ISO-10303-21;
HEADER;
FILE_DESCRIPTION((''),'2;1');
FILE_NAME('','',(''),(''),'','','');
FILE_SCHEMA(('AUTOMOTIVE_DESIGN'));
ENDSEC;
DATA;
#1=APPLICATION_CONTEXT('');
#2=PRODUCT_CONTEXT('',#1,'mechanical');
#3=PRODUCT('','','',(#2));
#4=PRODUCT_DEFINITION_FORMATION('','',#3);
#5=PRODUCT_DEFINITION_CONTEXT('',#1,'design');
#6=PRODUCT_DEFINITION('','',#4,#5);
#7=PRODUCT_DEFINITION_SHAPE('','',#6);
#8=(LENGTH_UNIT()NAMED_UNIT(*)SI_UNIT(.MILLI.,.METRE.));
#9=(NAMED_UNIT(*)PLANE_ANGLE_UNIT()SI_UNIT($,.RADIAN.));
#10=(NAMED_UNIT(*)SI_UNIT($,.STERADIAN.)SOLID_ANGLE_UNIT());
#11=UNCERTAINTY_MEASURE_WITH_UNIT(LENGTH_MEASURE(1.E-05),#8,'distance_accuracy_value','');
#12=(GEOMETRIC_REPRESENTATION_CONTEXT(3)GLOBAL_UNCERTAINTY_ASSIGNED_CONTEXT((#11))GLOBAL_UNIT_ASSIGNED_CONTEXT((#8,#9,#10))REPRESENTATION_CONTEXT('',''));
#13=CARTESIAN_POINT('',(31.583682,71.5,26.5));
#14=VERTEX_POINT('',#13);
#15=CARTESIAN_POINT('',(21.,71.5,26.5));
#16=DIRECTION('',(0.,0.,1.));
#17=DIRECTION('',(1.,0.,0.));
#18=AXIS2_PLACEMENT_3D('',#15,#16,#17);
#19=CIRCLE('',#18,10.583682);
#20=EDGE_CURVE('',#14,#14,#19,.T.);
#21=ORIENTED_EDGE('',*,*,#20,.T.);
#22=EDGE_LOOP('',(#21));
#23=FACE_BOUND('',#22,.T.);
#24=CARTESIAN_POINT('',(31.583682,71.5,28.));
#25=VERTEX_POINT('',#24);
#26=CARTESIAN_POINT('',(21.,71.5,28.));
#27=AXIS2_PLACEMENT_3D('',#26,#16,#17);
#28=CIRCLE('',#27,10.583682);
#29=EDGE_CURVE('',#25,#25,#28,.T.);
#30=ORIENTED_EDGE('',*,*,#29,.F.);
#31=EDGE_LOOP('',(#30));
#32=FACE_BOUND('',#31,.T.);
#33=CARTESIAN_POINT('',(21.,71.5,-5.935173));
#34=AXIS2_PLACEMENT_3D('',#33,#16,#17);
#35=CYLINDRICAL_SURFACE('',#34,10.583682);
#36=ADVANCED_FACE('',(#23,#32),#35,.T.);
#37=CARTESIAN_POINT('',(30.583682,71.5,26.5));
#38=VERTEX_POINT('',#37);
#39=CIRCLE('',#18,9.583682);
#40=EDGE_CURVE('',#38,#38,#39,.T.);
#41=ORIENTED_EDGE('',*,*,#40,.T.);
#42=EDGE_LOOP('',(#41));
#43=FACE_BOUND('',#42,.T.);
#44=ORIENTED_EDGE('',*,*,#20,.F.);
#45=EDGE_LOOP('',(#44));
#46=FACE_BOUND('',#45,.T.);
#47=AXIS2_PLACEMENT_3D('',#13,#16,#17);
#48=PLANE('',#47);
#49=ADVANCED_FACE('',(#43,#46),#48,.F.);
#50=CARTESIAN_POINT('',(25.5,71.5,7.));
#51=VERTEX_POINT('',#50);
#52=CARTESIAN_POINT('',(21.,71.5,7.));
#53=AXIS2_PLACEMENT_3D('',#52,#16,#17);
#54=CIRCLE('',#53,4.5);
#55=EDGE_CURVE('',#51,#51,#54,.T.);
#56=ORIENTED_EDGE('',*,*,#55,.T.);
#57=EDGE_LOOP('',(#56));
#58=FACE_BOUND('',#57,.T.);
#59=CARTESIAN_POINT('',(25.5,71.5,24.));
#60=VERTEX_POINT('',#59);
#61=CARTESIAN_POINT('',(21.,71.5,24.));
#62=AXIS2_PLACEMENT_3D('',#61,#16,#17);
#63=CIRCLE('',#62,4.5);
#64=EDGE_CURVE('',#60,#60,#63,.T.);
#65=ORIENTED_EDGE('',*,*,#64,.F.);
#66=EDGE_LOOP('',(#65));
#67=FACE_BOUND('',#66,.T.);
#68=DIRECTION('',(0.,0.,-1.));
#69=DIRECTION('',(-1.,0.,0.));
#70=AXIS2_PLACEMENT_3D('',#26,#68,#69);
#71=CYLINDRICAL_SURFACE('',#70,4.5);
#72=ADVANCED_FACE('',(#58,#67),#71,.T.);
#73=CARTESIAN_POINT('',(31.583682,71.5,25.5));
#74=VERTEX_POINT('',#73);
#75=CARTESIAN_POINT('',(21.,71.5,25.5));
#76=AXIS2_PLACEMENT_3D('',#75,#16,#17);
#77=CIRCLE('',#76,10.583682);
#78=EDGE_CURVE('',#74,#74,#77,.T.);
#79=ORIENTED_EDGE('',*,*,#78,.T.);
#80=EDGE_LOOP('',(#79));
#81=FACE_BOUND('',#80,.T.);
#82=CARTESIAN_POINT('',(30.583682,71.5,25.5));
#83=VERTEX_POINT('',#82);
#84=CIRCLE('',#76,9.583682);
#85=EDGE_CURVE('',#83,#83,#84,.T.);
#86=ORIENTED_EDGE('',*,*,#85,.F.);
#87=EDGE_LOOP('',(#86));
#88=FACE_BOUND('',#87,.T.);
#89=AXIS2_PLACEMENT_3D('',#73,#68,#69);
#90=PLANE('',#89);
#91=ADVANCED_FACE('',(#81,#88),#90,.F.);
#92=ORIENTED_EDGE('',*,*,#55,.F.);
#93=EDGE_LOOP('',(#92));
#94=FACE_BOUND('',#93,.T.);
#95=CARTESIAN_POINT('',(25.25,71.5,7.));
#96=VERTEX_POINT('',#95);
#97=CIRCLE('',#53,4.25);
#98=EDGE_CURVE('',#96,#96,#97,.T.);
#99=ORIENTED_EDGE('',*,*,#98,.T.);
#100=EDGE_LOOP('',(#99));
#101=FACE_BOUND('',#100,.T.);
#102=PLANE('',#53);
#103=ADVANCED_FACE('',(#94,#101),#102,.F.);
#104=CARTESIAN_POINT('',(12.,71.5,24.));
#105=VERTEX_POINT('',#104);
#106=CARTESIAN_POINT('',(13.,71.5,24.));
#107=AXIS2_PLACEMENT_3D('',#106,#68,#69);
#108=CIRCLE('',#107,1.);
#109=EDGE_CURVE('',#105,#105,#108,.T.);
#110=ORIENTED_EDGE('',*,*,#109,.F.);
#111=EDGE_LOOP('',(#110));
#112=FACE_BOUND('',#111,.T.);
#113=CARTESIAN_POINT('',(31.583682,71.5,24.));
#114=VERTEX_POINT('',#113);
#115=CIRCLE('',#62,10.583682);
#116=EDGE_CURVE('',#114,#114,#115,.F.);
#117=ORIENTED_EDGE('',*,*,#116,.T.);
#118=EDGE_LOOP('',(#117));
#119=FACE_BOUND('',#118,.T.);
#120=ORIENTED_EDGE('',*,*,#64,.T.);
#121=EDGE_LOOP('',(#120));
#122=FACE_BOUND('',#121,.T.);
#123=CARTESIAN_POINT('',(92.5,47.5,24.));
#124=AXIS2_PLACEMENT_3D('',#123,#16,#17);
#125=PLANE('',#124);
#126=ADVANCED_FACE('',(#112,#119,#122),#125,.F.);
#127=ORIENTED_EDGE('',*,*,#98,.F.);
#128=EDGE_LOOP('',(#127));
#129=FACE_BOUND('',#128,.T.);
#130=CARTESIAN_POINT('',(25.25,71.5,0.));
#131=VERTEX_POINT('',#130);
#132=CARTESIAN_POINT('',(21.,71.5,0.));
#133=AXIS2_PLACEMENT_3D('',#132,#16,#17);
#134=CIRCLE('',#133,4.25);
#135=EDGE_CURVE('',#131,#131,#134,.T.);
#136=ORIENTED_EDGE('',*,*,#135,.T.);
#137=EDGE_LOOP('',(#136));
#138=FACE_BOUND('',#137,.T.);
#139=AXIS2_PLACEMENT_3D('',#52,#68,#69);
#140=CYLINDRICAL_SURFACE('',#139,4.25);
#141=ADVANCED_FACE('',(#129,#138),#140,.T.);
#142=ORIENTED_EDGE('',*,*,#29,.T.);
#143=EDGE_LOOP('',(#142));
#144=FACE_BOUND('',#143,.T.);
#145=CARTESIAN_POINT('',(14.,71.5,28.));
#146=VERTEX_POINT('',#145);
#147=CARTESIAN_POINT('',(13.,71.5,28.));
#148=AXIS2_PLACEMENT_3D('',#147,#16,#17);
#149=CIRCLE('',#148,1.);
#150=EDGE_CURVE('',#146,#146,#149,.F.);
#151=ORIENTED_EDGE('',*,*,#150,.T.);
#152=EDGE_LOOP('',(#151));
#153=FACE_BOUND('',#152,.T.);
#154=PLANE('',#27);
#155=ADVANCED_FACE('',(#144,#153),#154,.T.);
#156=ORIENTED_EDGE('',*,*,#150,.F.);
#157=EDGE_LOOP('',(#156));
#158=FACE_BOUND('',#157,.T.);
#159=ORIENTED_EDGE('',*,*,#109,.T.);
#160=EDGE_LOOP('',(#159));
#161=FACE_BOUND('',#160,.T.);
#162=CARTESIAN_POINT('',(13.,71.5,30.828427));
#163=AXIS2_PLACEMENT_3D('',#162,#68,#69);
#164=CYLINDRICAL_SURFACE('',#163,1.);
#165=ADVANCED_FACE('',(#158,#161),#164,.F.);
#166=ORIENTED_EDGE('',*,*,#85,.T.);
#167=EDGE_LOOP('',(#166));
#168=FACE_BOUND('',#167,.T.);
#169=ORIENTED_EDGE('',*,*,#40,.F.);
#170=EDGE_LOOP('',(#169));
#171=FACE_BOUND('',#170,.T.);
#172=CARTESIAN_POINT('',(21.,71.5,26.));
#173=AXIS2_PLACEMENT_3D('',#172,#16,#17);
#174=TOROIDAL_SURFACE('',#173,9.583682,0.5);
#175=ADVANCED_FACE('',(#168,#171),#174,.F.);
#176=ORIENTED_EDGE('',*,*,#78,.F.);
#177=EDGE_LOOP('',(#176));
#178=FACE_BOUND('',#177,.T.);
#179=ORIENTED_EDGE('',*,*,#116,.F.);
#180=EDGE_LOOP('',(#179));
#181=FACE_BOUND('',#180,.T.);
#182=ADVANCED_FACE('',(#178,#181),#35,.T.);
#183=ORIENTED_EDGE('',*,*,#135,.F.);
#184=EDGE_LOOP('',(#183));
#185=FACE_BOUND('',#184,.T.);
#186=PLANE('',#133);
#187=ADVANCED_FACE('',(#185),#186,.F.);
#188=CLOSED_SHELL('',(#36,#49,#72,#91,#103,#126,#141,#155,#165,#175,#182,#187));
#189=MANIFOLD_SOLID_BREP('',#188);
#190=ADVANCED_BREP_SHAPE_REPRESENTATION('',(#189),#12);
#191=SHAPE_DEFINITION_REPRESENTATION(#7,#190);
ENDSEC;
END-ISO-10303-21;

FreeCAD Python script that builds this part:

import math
import FreeCAD as App
import Part
import Sketcher

doc = App.newDocument("Part")
params = doc.addObject("Spreadsheet::Sheet", "Params")
for row, (alias, value) in enumerate([
    ("sketch1_diameter", "8.5 mm"),
    ("pad1_length", "7 mm"),
    ("sketch2_diameter", "9 mm"),
    ("pad2_length", "21 mm"),
    ("pad3_length", "4 mm"),
    ("sketch4_radius", "0.5 mm"),
    ("groove_angle", "360 deg"),
    ("sketch5_diameter", "2 mm"),
    ("pocket1_length", "4 mm"),
], start=1):
    params.set(f"A{row}", alias)
    params.set(f"B{row}", "=" + value)
    params.setAlias(f"B{row}", alias)

body = doc.addObject("PartDesign::Body", "Body")

# Sketch on XY plane
sketch1 = body.newObject("Sketcher::SketchObject", "Sketch")
sketch1.AttachmentSupport = (doc.getObject("XY_Plane"), [""])
sketch1.MapMode = "FlatFace"
sketch1.addGeometry(Part.Circle(App.Vector(21, 71.5, 0), App.Vector(0, 0, 1), 4.2), False)
sketch1.addConstraint([
    Sketcher.Constraint("Diameter", 0, 8.5),
    Sketcher.Constraint("DistanceX", -1, 1, 0, 3, 21.0),
    Sketcher.Constraint("DistanceY", -1, 1, 0, 3, 71.5),
])
sketch1.setExpression("Constraints[0]", "Params.sketch1_diameter")
pad1 = body.newObject("PartDesign::Pad", "Pad")
pad1.Profile = sketch1
pad1.setExpression("Length", "Params.pad1_length")

# Sketch on XY plane
sketch2 = body.newObject("Sketcher::SketchObject", "Sketch001")
sketch2.AttachmentSupport = (doc.getObject("XY_Plane"), [""])
sketch2.MapMode = "FlatFace"
sketch2.AttachmentOffset = App.Placement(App.Vector(0, 0, 7), App.Rotation())
sketch2.addGeometry(Part.Circle(App.Vector(21, 71.5, 0), App.Vector(0, 0, 1), 4.5), False)
sketch2.addConstraint([
    Sketcher.Constraint("Diameter", 0, 9.0),
    Sketcher.Constraint("DistanceX", -1, 1, 0, 3, 21.0),
    Sketcher.Constraint("DistanceY", -1, 1, 0, 3, 71.5),
])
sketch2.setExpression("Constraints[0]", "Params.sketch2_diameter")
pad2 = body.newObject("PartDesign::Pad", "Pad001")
pad2.Profile = sketch2
pad2.setExpression("Length", "Params.pad2_length")

# Sketch on XY plane
sketch3 = body.newObject("Sketcher::SketchObject", "Sketch002")
sketch3.AttachmentSupport = (doc.getObject("XY_Plane"), [""])
sketch3.MapMode = "FlatFace"
sketch3.AttachmentOffset = App.Placement(App.Vector(0, 0, 28), App.Rotation())
sketch3.addGeometry(Part.Circle(App.Vector(21, 72, 0), App.Vector(0, 0, 1), 11), False)
sketch3.addConstraint([
    Sketcher.Constraint("DistanceX", -1, 1, 0, 3, 21.0),
    Sketcher.Constraint("DistanceY", -1, 1, 0, 3, 71.5),
    Sketcher.Constraint("Diameter", 0, 21.167364),
])
pad3 = body.newObject("PartDesign::Pad", "Pad002")
pad3.Profile = sketch3
pad3.setExpression("Length", "Params.pad3_length")
pad3.Reversed = True

# Sketch on XZ plane
sketch4 = body.newObject("Sketcher::SketchObject", "Sketch003")
sketch4.AttachmentSupport = (doc.getObject("XZ_Plane"), [""])
sketch4.MapMode = "FlatFace"
sketch4.AttachmentOffset = App.Placement(App.Vector(0, 0, -71.5), App.Rotation())
sketch4.addGeometry([
    Part.LineSegment(App.Vector(31.6, 26.5, 0), App.Vector(31.6, 25.5, 0)),
    Part.LineSegment(App.Vector(31.6, 25.5, 0), App.Vector(30.6, 25.5, 0)),
    Part.ArcOfCircle(Part.Circle(App.Vector(30.6, 26, 0), App.Vector(0, 0, 1), 0.5), math.radians(90), math.radians(270)),
    Part.LineSegment(App.Vector(30.6, 26.5, 0), App.Vector(31.6, 26.5, 0)),
], False)
sketch4.addGeometry(Part.LineSegment(App.Vector(21, 26.5, 0), App.Vector(21, 25.5, 0)), True)  # axis
sketch4.addConstraint([
    Sketcher.Constraint("Coincident", 0, 2, 1, 1),
    Sketcher.Constraint("Tangent", 1, 2, 2, 2),
    Sketcher.Constraint("Tangent", 2, 1, 3, 1),
    Sketcher.Constraint("Coincident", 3, 2, 0, 1),
    Sketcher.Constraint("Vertical", 0),
    Sketcher.Constraint("Horizontal", 1),
    Sketcher.Constraint("Horizontal", 3),
    Sketcher.Constraint("Vertical", 4),
    Sketcher.Constraint("Horizontal", 3, 2, 4, 1),
    Sketcher.Constraint("Horizontal", 1, 2, 4, 2),
    Sketcher.Constraint("Equal", 3, 0),
    Sketcher.Constraint("Radius", 2, 0.5),
    Sketcher.Constraint("DistanceY", -1, 1, 2, 3, 26.0),
    Sketcher.Constraint("DistanceX", -1, 1, 4, 1, 21.0),
    Sketcher.Constraint("DistanceX", -1, 1, 2, 3, 30.583682),
])
sketch4.setExpression("Constraints[11]", "Params.sketch4_radius")
groove = body.newObject("PartDesign::Groove", "Groove")
groove.Profile = sketch4
groove.ReferenceAxis = (sketch4, ["Axis0"])
groove.setExpression("Angle", "Params.groove_angle")

# Sketch on XY plane
sketch5 = body.newObject("Sketcher::SketchObject", "Sketch004")
sketch5.AttachmentSupport = (doc.getObject("XY_Plane"), [""])
sketch5.MapMode = "FlatFace"
sketch5.AttachmentOffset = App.Placement(App.Vector(0, 0, 24), App.Rotation())
sketch5.addGeometry(Part.Circle(App.Vector(13, 71.5, 0), App.Vector(0, 0, 1), 1), False)
sketch5.addConstraint([
    Sketcher.Constraint("Diameter", 0, 2.0),
    Sketcher.Constraint("DistanceX", -1, 1, 0, 3, 13.0),
    Sketcher.Constraint("DistanceY", -1, 1, 0, 3, 71.5),
])
sketch5.setExpression("Constraints[0]", "Params.sketch5_diameter")
pocket1 = body.newObject("PartDesign::Pocket", "Pocket")
pocket1.Profile = sketch5
pocket1.setExpression("Length", "Params.pocket1_length")
pocket1.Reversed = True

doc.recompute()
